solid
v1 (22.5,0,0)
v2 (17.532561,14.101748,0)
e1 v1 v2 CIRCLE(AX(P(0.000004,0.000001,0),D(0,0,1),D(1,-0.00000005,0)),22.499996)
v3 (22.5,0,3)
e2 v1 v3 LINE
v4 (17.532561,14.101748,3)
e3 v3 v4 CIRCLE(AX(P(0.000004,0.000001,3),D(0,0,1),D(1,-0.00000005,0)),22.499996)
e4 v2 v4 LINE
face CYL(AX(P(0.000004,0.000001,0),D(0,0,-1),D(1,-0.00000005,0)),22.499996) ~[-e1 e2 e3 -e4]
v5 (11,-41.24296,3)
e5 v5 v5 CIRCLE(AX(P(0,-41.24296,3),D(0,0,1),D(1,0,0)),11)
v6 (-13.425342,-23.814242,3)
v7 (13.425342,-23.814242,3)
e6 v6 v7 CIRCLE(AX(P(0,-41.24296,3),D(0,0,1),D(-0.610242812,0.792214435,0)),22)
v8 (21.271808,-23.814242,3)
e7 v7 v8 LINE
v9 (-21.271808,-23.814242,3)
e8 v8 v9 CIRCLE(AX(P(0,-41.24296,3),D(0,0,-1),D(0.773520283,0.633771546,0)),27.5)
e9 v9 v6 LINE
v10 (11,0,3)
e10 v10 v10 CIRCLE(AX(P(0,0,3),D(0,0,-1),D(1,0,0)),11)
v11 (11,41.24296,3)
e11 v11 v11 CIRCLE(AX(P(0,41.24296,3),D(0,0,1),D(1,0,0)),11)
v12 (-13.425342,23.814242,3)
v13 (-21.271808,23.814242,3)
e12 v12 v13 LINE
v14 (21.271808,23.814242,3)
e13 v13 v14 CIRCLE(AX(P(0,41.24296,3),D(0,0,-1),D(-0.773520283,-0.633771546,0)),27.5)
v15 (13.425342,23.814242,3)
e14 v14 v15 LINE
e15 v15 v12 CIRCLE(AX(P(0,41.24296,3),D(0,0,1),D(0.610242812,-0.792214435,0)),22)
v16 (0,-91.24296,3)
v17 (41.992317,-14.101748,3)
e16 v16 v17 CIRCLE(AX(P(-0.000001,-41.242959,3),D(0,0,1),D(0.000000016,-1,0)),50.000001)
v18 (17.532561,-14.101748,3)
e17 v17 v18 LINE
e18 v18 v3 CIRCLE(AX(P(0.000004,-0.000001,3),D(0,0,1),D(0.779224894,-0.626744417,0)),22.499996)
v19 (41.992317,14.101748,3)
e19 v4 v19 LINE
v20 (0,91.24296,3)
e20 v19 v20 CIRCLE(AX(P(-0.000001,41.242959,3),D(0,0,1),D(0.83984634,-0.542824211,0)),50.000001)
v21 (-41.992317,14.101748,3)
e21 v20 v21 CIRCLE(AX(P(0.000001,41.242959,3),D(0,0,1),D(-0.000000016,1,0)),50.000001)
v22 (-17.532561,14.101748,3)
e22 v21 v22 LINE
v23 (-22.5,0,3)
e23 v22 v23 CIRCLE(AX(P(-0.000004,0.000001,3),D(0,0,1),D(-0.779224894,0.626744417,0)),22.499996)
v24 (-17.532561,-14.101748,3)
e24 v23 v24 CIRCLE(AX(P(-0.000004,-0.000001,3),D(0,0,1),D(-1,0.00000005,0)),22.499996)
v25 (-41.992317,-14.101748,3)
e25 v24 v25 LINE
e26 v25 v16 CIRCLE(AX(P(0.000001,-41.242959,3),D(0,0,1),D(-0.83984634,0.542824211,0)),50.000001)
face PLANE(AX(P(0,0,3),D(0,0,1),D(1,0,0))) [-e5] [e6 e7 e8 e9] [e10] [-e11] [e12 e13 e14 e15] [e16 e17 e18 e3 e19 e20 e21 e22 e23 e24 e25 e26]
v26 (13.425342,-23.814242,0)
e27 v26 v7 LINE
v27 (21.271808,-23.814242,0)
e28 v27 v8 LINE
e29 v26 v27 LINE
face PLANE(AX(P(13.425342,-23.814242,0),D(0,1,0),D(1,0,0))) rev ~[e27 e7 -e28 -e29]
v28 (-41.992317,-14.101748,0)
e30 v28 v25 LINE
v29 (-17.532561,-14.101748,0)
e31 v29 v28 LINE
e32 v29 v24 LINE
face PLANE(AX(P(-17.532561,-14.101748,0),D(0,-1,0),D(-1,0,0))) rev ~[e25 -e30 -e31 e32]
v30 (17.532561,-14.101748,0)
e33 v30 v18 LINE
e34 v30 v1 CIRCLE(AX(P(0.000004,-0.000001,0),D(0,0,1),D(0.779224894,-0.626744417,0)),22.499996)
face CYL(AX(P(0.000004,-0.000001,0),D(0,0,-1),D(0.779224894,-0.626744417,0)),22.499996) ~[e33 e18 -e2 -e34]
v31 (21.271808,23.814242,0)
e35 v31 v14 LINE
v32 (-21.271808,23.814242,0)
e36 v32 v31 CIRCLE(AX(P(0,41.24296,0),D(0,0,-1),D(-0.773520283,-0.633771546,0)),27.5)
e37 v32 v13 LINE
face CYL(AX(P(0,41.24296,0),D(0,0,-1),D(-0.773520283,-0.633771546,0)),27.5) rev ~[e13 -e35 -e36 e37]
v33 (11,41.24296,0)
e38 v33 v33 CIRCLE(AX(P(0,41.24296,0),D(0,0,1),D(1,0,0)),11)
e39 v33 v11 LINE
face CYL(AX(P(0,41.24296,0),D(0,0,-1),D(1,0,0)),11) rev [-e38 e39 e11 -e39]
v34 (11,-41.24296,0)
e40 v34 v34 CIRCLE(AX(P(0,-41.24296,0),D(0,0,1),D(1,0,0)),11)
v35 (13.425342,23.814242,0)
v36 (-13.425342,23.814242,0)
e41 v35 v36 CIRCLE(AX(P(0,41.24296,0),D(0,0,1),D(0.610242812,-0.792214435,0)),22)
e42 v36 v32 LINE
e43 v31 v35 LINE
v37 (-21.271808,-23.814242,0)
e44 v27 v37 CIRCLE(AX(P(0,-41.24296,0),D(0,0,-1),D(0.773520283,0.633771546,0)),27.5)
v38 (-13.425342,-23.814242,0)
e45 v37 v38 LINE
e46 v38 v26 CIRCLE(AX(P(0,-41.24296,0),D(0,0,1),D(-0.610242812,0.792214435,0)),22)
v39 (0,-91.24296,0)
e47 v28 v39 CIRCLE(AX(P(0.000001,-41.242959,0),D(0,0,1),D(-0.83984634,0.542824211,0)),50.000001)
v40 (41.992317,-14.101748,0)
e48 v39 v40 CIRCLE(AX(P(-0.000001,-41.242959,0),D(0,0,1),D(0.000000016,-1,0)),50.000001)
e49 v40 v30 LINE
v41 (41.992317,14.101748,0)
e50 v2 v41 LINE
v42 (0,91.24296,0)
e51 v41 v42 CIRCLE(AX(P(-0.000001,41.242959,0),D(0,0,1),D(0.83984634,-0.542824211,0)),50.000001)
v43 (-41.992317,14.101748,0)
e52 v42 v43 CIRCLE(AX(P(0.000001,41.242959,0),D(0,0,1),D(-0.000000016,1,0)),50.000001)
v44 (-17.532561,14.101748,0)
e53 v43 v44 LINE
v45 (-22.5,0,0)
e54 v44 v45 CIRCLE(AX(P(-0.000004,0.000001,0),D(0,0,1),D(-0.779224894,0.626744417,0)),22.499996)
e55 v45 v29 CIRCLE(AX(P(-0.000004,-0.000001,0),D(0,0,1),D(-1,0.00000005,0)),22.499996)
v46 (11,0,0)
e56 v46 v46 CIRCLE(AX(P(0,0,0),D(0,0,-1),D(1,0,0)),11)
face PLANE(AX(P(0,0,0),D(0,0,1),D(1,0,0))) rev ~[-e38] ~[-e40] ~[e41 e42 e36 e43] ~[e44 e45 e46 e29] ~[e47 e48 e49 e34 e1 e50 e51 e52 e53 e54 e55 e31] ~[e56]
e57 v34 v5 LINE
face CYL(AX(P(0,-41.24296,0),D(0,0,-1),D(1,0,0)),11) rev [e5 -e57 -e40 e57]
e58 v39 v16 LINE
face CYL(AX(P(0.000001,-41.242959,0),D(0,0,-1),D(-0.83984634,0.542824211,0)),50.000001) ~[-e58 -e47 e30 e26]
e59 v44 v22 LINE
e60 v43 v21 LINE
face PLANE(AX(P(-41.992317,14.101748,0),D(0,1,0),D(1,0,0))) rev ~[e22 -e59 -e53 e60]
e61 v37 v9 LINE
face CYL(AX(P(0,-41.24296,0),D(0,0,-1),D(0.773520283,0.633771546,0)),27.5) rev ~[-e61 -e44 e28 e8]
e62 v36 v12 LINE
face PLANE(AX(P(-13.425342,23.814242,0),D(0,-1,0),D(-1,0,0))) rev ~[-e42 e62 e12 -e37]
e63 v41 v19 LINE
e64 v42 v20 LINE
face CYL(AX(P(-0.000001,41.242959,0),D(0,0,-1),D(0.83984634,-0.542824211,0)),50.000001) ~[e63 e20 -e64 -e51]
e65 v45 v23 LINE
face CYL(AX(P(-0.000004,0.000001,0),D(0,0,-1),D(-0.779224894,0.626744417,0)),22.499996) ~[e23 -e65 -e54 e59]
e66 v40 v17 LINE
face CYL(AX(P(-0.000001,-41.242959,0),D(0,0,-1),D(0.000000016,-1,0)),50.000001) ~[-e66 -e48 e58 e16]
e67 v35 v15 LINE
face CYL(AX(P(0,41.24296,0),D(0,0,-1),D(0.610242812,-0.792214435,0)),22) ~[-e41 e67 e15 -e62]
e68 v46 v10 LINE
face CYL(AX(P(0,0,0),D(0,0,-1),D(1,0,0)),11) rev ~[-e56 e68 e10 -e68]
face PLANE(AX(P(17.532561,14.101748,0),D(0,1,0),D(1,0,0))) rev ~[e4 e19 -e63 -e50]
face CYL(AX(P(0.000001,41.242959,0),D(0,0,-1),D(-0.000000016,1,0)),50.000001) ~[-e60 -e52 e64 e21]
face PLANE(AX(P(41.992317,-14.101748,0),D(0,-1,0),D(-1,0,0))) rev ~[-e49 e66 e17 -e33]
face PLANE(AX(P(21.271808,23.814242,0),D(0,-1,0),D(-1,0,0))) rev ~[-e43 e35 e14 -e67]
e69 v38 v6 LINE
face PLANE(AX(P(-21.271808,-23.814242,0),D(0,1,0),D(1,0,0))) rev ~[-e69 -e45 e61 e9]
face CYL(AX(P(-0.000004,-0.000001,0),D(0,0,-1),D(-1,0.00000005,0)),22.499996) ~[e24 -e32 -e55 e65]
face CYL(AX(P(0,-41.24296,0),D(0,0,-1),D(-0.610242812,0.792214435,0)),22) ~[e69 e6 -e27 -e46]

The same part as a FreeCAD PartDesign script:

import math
import FreeCAD as App
import Part
import Sketcher
Q = App.Units.Quantity

doc = App.newDocument("Part")
body = doc.addObject("PartDesign::Body", "Body")

sketch1 = doc.addObject("Sketcher::SketchObject", "Sketch")
body.addObject(sketch1)
sketch1.AttachmentSupport = (doc.XY_Plane, [""])
sketch1.MapMode = "FlatFace"
sketch1.addGeometry([
    Part.LineSegment(App.Vector(-42, 14, 0), App.Vector(-18, 14, 0)),
    Part.ArcOfCircle(Part.Circle(App.Vector(0, 0, 0), App.Vector(0, 0, 1), 22), math.radians(141), math.radians(180)),
    Part.ArcOfCircle(Part.Circle(App.Vector(0, 0, 0), App.Vector(0, 0, 1), 22), math.radians(180), math.radians(219)),
    Part.LineSegment(App.Vector(-18, -14, 0), App.Vector(-42, -14, 0)),
    Part.ArcOfCircle(Part.Circle(App.Vector(0, -41, 0), App.Vector(0, 0, 1), 50), math.radians(147), math.radians(270)),
    Part.ArcOfCircle(Part.Circle(App.Vector(0, -41, 0), App.Vector(0, 0, 1), 50), math.radians(-90), math.radians(33)),
    Part.LineSegment(App.Vector(42, -14, 0), App.Vector(18, -14, 0)),
    Part.ArcOfCircle(Part.Circle(App.Vector(0, 0, 0), App.Vector(0, 0, 1), 22), math.radians(-39), math.radians(0)),
    Part.ArcOfCircle(Part.Circle(App.Vector(0, 0, 0), App.Vector(0, 0, 1), 22), math.radians(0), math.radians(39)),
    Part.LineSegment(App.Vector(18, 14, 0), App.Vector(42, 14, 0)),
    Part.ArcOfCircle(Part.Circle(App.Vector(0, 41, 0), App.Vector(0, 0, 1), 50), math.radians(-33), math.radians(90)),
    Part.ArcOfCircle(Part.Circle(App.Vector(0, 41, 0), App.Vector(0, 0, 1), 50), math.radians(90), math.radians(213)),
    Part.LineSegment(App.Vector(13, -24, 0), App.Vector(21, -24, 0)),
    Part.ArcOfCircle(Part.Circle(App.Vector(0, -41, 0), App.Vector(0, 0, 1), 28), math.radians(141), math.radians(399)),
    Part.LineSegment(App.Vector(-21, -24, 0), App.Vector(-13, -24, 0)),
    Part.ArcOfCircle(Part.Circle(App.Vector(0, -41, 0), App.Vector(0, 0, 1), 22), math.radians(128), math.radians(412)),
    Part.Circle(App.Vector(0, -41, 0), App.Vector(0, 0, 1), 11),
    Part.Circle(App.Vector(0, 0, 0), App.Vector(0, 0, 1), 11),
    Part.Circle(App.Vector(0, 41, 0), App.Vector(0, 0, 1), 11),
    Part.ArcOfCircle(Part.Circle(App.Vector(0, 41, 0), App.Vector(0, 0, 1), 28), math.radians(-39), math.radians(219)),
    Part.LineSegment(App.Vector(21, 24, 0), App.Vector(13, 24, 0)),
    Part.ArcOfCircle(Part.Circle(App.Vector(0, 41, 0), App.Vector(0, 0, 1), 22), math.radians(-52), math.radians(232)),
    Part.LineSegment(App.Vector(-13, 24, 0), App.Vector(-21, 24, 0)),
], False)
sketch1.addConstraint([
    Sketcher.Constraint("Coincident", 0, 2, 1, 1),
    Sketcher.Constraint("Tangent", 1, 2, 2, 1),
    Sketcher.Constraint("Coincident", 2, 2, 3, 1),
    Sketcher.Constraint("Coincident", 3, 2, 4, 1),
    Sketcher.Constraint("Tangent", 4, 2, 5, 1),
    Sketcher.Constraint("Coincident", 5, 2, 6, 1),
    Sketcher.Constraint("Coincident", 6, 2, 7, 1),
    Sketcher.Constraint("Tangent", 7, 2, 8, 1),
    Sketcher.Constraint("Coincident", 8, 2, 9, 1),
    Sketcher.Constraint("Coincident", 9, 2, 10, 1),
    Sketcher.Constraint("Tangent", 10, 2, 11, 1),
    Sketcher.Constraint("Coincident", 11, 2, 0, 1),
    Sketcher.Constraint("Coincident", 12, 2, 13, 2),
    Sketcher.Constraint("Coincident", 13, 1, 14, 1),
    Sketcher.Constraint("Coincident", 14, 2, 15, 1),
    Sketcher.Constraint("Coincident", 15, 2, 12, 1),
    Sketcher.Constraint("Coincident", 19, 1, 20, 1),
    Sketcher.Constraint("Coincident", 20, 2, 21, 1),
    Sketcher.Constraint("Coincident", 21, 2, 22, 1),
    Sketcher.Constraint("Coincident", 22, 2, 19, 2),
    Sketcher.Constraint("Horizontal", 0),
    Sketcher.Constraint("Horizontal", 3),
    Sketcher.Constraint("Horizontal", 6),
    Sketcher.Constraint("Horizontal", 9),
    Sketcher.Constraint("Horizontal", 12),
    Sketcher.Constraint("Horizontal", 14),
    Sketcher.Constraint("Horizontal", 20),
    Sketcher.Constraint("Horizontal", 22),
    Sketcher.Constraint("Coincident", 1, 3, -1, 1),
    Sketcher.Constraint("Coincident", 7, 3, -1, 1),
    Sketcher.Constraint("Coincident", 17, 3, -1, 1),
    Sketcher.Constraint("Coincident", 13, 3, 4, 3),
    Sketcher.Constraint("Coincident", 15, 3, 4, 3),
    Sketcher.Constraint("Coincident", 16, 3, 4, 3),
    Sketcher.Constraint("Coincident", 18, 3, 10, 3),
    Sketcher.Constraint("Coincident", 19, 3, 10, 3),
    Sketcher.Constraint("Coincident", 21, 3, 10, 3),
    Sketcher.Constraint("Equal", 1, 2),
    Sketcher.Constraint("Equal", 4, 5),
    Sketcher.Constraint("Equal", 2, 7),
    Sketcher.Constraint("Equal", 7, 8),
    Sketcher.Constraint("Equal", 5, 10),
    Sketcher.Constraint("Equal", 10, 11),
    Sketcher.Constraint("Equal", 16, 17),
    Sketcher.Constraint("Equal", 17, 18),
    Sketcher.Constraint("Equal", 13, 19),
    Sketcher.Constraint("Equal", 15, 21),
    Sketcher.Constraint("Symmetric", 4, 3, 10, 3, -1, 1),
    Sketcher.Constraint("Symmetric", 3, 2, 5, 2, -2),
    Sketcher.Constraint("PointOnObject", 1, 2, -1),
    Sketcher.Constraint("PointOnObject", 4, 2, -2),
    Sketcher.Constraint("PointOnObject", 7, 2, -1),
    Sketcher.Constraint("PointOnObject", 10, 2, -2),
    Sketcher.Constraint("Horizontal", 0, 2, 8, 2),
    Sketcher.Constraint("Horizontal", 12, 2, 13, 1),
    Sketcher.Constraint("Horizontal", 20, 2, 21, 2),
    Sketcher.Constraint("Vertical", 0, 2, 2, 2),
    Sketcher.Constraint("Vertical", 12, 2, 19, 1),
    Sketcher.Constraint("Diameter", 16, Q("22 mm")),
    Sketcher.Constraint("Radius", 4, Q("50.000001 mm")),
    Sketcher.Constraint("Radius", 15, Q("22 mm")),
    Sketcher.Constraint("Radius", 13, Q("27.5 mm")),
    Sketcher.Constraint("DistanceX", 1, 2, -1, 1, Q("22.5 mm")),
    Sketcher.Constraint("DistanceX", 0, 1, 0, 2, Q("24.459756 mm")),
    Sketcher.Constraint("DistanceX", 12, 1, 12, 2, Q("7.846466 mm")),
    Sketcher.Constraint("DistanceY", 4, 3, -1, 1, Q("41.242959 mm")),
])
pad1 = doc.addObject("PartDesign::Pad", "Pad")
body.addObject(pad1)
pad1.Profile = sketch1
pad1.Length = 3

doc.recompute()
